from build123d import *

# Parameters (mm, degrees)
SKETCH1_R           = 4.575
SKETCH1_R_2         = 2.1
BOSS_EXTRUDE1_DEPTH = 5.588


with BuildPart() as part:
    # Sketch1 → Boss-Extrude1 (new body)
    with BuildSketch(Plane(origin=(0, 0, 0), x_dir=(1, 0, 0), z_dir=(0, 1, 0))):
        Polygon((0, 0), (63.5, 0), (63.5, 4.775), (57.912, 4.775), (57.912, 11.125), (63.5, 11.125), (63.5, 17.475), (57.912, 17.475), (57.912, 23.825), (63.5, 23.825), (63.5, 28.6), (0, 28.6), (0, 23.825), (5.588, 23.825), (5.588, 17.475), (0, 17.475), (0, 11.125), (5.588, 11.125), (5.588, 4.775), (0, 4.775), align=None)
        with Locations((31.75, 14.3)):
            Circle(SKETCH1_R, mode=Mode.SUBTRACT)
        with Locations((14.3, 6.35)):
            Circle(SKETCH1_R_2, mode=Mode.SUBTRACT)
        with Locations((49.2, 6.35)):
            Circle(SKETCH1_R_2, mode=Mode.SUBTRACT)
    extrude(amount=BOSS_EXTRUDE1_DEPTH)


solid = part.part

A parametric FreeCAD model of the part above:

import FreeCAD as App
import Part
import Sketcher
Q = App.Units.Quantity

doc = App.newDocument("Part")
params = doc.addObject("Spreadsheet::Sheet", "Params")
for row, (alias, value) in enumerate([
    ("sketch1_width", "2.5 in"),
    ("sketch1_width2", "0.22 in"),
    ("sketch1_height", "0.25 in"),
    ("pad1_length", "0.22 in"),
], start=1):
    params.set(f"A{row}", alias)
    params.set(f"B{row}", "=" + value)
    params.setAlias(f"B{row}", alias)

body = doc.addObject("PartDesign::Body", "Body")

# Sketch on XZ plane
sketch1 = body.newObject("Sketcher::SketchObject", "Sketch")
sketch1.AttachmentSupport = (doc.getObject("XZ_Plane"), [""])
sketch1.MapMode = "FlatFace"
sketch1.addGeometry([
    Part.LineSegment(App.Vector(0, 0, 0), App.Vector(63.5, 0, 0)),  # 0
    Part.LineSegment(App.Vector(63.5, 0, 0), App.Vector(63.5, -4.775, 0)),  # 1
    Part.LineSegment(App.Vector(63.5, -4.775, 0), App.Vector(57.912, -4.775, 0)),  # 2
    Part.LineSegment(App.Vector(57.912, -4.775, 0), App.Vector(57.912, -11.125, 0)),  # 3
    Part.LineSegment(App.Vector(57.912, -11.125, 0), App.Vector(63.5, -11.125, 0)),  # 4
    Part.LineSegment(App.Vector(63.5, -11.125, 0), App.Vector(63.5, -17.475, 0)),  # 5
    Part.LineSegment(App.Vector(63.5, -17.475, 0), App.Vector(57.912, -17.475, 0)),  # 6
    Part.LineSegment(App.Vector(57.912, -17.475, 0), App.Vector(57.912, -23.825, 0)),  # 7
    Part.LineSegment(App.Vector(57.912, -23.825, 0), App.Vector(63.5, -23.825, 0)),  # 8
    Part.LineSegment(App.Vector(63.5, -23.825, 0), App.Vector(63.5, -28.6, 0)),  # 9
    Part.LineSegment(App.Vector(63.5, -28.6, 0), App.Vector(0, -28.6, 0)),  # 10
    Part.LineSegment(App.Vector(0, -28.6, 0), App.Vector(0, -23.825, 0)),  # 11
    Part.LineSegment(App.Vector(0, -23.825, 0), App.Vector(5.588, -23.825, 0)),  # 12
    Part.LineSegment(App.Vector(5.588, -23.825, 0), App.Vector(5.588, -17.475, 0)),  # 13
    Part.LineSegment(App.Vector(5.588, -17.475, 0), App.Vector(0, -17.475, 0)),  # 14
    Part.LineSegment(App.Vector(0, -17.475, 0), App.Vector(0, -11.125, 0)),  # 15
    Part.LineSegment(App.Vector(0, -11.125, 0), App.Vector(5.588, -11.125, 0)),  # 16
    Part.LineSegment(App.Vector(5.588, -11.125, 0), App.Vector(5.588, -4.775, 0)),  # 17
    Part.LineSegment(App.Vector(5.588, -4.775, 0), App.Vector(0, -4.775, 0)),  # 18
    Part.LineSegment(App.Vector(0, -4.775, 0), App.Vector(0, 0, 0)),  # 19
    Part.Circle(App.Vector(14.3, -6.35, 0), App.Vector(0, 0, 1), 2.1),  # 20
    Part.Circle(App.Vector(49.2, -6.35, 0), App.Vector(0, 0, 1), 2.1),  # 21
    Part.Circle(App.Vector(31.75, -14.3, 0), App.Vector(0, 0, 1), 4.575),  # 22
], False)
sketch1.addConstraint([
    Sketcher.Constraint("Coincident", 0, 2, 1, 1),
    Sketcher.Constraint("Coincident", 1, 2, 2, 1),
    Sketcher.Constraint("Coincident", 2, 2, 3, 1),
    Sketcher.Constraint("Coincident", 3, 2, 4, 1),
    Sketcher.Constraint("Coincident", 4, 2, 5, 1),
    Sketcher.Constraint("Coincident", 5, 2, 6, 1),
    Sketcher.Constraint("Coincident", 6, 2, 7, 1),
    Sketcher.Constraint("Coincident", 7, 2, 8, 1),
    Sketcher.Constraint("Coincident", 8, 2, 9, 1),
    Sketcher.Constraint("Coincident", 9, 2, 10, 1),
    Sketcher.Constraint("Coincident", 10, 2, 11, 1),
    Sketcher.Constraint("Coincident", 11, 2, 12, 1),
    Sketcher.Constraint("Coincident", 12, 2, 13, 1),
    Sketcher.Constraint("Coincident", 13, 2, 14, 1),
    Sketcher.Constraint("Coincident", 14, 2, 15, 1),
    Sketcher.Constraint("Coincident", 15, 2, 16, 1),
    Sketcher.Constraint("Coincident", 16, 2, 17, 1),
    Sketcher.Constraint("Coincident", 17, 2, 18, 1),
    Sketcher.Constraint("Coincident", 18, 2, 19, 1),
    Sketcher.Constraint("Coincident", 19, 2, 0, 1),
    Sketcher.Constraint("Horizontal", 0),
    Sketcher.Constraint("Vertical", 1),
    Sketcher.Constraint("Horizontal", 2),
    Sketcher.Constraint("Vertical", 3),
    Sketcher.Constraint("Horizontal", 4),
    Sketcher.Constraint("Vertical", 5),
    Sketcher.Constraint("Horizontal", 6),
    Sketcher.Constraint("Vertical", 7),
    Sketcher.Constraint("Horizontal", 8),
    Sketcher.Constraint("Vertical", 9),
    Sketcher.Constraint("Horizontal", 10),
    Sketcher.Constraint("Vertical", 11),
    Sketcher.Constraint("Horizontal", 12),
    Sketcher.Constraint("Vertical", 13),
    Sketcher.Constraint("Horizontal", 14),
    Sketcher.Constraint("Vertical", 15),
    Sketcher.Constraint("Horizontal", 16),
    Sketcher.Constraint("Vertical", 17),
    Sketcher.Constraint("Horizontal", 18),
    Sketcher.Constraint("Vertical", 19),
    Sketcher.Constraint("Coincident", 19, 2, -1, 1),
    Sketcher.Constraint("Equal", 20, 21),
    Sketcher.Constraint("PointOnObject", 10, 2, -2),
    Sketcher.Constraint("PointOnObject", 14, 2, -2),
    Sketcher.Constraint("Horizontal", 20, 3, 21, 3),
    Sketcher.Constraint("Horizontal", 8, 2, 11, 2),
    Sketcher.Constraint("Horizontal", 6, 2, 13, 2),
    Sketcher.Constraint("Horizontal", 4, 2, 15, 2),
    Sketcher.Constraint("Horizontal", 2, 2, 17, 2),
    Sketcher.Constraint("Vertical", 1, 2, 4, 2),
    Sketcher.Constraint("Vertical", 3, 2, 6, 2),
    Sketcher.Constraint("Vertical", 5, 2, 8, 2),
    Sketcher.Constraint("Vertical", 13, 2, 16, 2),
    Sketcher.Constraint("Equal", 8, 12),
    Sketcher.Constraint("Equal", 3, 5),
    Sketcher.Constraint("Equal", 5, 7),
    Sketcher.Constraint("Equal", 1, 9),
    Sketcher.Constraint("DistanceX", 0, 1, 0, 2, Q("2.5 in")),
    Sketcher.Constraint("DistanceX", 2, 2, 2, 1, Q("0.22 in")),
    Sketcher.Constraint("DistanceY", 3, 2, 3, 1, Q("0.25 in")),
    Sketcher.Constraint("Diameter", 20, Q("4.2 mm")),
    Sketcher.Constraint("Diameter", 22, Q("9.15 mm")),
    Sketcher.Constraint("DistanceY", 20, 3, -1, 1, Q("0.25 in")),
    Sketcher.Constraint("DistanceX", -1, 1, 22, 3, Q("1.25 in")),
    Sketcher.Constraint("DistanceY", 22, 3, 1, 2, Q("0.375 in")),
    Sketcher.Constraint("DistanceY", 1, 2, 1, 1, Q("4.775 mm")),
    Sketcher.Constraint("DistanceX", -1, 1, 20, 3, Q("14.3 mm")),
    Sketcher.Constraint("DistanceX", -1, 1, 21, 3, Q("49.2 mm")),
])
sketch1.setExpression("Constraints[57]", "Params.sketch1_width")
sketch1.setExpression("Constraints[58]", "Params.sketch1_width2")
sketch1.setExpression("Constraints[59]", "Params.sketch1_height")
pad1 = body.newObject("PartDesign::Pad", "Pad")
pad1.Profile = sketch1
pad1.setExpression("Length", "Params.pad1_length")
pad1.Reversed = True

doc.recompute()
